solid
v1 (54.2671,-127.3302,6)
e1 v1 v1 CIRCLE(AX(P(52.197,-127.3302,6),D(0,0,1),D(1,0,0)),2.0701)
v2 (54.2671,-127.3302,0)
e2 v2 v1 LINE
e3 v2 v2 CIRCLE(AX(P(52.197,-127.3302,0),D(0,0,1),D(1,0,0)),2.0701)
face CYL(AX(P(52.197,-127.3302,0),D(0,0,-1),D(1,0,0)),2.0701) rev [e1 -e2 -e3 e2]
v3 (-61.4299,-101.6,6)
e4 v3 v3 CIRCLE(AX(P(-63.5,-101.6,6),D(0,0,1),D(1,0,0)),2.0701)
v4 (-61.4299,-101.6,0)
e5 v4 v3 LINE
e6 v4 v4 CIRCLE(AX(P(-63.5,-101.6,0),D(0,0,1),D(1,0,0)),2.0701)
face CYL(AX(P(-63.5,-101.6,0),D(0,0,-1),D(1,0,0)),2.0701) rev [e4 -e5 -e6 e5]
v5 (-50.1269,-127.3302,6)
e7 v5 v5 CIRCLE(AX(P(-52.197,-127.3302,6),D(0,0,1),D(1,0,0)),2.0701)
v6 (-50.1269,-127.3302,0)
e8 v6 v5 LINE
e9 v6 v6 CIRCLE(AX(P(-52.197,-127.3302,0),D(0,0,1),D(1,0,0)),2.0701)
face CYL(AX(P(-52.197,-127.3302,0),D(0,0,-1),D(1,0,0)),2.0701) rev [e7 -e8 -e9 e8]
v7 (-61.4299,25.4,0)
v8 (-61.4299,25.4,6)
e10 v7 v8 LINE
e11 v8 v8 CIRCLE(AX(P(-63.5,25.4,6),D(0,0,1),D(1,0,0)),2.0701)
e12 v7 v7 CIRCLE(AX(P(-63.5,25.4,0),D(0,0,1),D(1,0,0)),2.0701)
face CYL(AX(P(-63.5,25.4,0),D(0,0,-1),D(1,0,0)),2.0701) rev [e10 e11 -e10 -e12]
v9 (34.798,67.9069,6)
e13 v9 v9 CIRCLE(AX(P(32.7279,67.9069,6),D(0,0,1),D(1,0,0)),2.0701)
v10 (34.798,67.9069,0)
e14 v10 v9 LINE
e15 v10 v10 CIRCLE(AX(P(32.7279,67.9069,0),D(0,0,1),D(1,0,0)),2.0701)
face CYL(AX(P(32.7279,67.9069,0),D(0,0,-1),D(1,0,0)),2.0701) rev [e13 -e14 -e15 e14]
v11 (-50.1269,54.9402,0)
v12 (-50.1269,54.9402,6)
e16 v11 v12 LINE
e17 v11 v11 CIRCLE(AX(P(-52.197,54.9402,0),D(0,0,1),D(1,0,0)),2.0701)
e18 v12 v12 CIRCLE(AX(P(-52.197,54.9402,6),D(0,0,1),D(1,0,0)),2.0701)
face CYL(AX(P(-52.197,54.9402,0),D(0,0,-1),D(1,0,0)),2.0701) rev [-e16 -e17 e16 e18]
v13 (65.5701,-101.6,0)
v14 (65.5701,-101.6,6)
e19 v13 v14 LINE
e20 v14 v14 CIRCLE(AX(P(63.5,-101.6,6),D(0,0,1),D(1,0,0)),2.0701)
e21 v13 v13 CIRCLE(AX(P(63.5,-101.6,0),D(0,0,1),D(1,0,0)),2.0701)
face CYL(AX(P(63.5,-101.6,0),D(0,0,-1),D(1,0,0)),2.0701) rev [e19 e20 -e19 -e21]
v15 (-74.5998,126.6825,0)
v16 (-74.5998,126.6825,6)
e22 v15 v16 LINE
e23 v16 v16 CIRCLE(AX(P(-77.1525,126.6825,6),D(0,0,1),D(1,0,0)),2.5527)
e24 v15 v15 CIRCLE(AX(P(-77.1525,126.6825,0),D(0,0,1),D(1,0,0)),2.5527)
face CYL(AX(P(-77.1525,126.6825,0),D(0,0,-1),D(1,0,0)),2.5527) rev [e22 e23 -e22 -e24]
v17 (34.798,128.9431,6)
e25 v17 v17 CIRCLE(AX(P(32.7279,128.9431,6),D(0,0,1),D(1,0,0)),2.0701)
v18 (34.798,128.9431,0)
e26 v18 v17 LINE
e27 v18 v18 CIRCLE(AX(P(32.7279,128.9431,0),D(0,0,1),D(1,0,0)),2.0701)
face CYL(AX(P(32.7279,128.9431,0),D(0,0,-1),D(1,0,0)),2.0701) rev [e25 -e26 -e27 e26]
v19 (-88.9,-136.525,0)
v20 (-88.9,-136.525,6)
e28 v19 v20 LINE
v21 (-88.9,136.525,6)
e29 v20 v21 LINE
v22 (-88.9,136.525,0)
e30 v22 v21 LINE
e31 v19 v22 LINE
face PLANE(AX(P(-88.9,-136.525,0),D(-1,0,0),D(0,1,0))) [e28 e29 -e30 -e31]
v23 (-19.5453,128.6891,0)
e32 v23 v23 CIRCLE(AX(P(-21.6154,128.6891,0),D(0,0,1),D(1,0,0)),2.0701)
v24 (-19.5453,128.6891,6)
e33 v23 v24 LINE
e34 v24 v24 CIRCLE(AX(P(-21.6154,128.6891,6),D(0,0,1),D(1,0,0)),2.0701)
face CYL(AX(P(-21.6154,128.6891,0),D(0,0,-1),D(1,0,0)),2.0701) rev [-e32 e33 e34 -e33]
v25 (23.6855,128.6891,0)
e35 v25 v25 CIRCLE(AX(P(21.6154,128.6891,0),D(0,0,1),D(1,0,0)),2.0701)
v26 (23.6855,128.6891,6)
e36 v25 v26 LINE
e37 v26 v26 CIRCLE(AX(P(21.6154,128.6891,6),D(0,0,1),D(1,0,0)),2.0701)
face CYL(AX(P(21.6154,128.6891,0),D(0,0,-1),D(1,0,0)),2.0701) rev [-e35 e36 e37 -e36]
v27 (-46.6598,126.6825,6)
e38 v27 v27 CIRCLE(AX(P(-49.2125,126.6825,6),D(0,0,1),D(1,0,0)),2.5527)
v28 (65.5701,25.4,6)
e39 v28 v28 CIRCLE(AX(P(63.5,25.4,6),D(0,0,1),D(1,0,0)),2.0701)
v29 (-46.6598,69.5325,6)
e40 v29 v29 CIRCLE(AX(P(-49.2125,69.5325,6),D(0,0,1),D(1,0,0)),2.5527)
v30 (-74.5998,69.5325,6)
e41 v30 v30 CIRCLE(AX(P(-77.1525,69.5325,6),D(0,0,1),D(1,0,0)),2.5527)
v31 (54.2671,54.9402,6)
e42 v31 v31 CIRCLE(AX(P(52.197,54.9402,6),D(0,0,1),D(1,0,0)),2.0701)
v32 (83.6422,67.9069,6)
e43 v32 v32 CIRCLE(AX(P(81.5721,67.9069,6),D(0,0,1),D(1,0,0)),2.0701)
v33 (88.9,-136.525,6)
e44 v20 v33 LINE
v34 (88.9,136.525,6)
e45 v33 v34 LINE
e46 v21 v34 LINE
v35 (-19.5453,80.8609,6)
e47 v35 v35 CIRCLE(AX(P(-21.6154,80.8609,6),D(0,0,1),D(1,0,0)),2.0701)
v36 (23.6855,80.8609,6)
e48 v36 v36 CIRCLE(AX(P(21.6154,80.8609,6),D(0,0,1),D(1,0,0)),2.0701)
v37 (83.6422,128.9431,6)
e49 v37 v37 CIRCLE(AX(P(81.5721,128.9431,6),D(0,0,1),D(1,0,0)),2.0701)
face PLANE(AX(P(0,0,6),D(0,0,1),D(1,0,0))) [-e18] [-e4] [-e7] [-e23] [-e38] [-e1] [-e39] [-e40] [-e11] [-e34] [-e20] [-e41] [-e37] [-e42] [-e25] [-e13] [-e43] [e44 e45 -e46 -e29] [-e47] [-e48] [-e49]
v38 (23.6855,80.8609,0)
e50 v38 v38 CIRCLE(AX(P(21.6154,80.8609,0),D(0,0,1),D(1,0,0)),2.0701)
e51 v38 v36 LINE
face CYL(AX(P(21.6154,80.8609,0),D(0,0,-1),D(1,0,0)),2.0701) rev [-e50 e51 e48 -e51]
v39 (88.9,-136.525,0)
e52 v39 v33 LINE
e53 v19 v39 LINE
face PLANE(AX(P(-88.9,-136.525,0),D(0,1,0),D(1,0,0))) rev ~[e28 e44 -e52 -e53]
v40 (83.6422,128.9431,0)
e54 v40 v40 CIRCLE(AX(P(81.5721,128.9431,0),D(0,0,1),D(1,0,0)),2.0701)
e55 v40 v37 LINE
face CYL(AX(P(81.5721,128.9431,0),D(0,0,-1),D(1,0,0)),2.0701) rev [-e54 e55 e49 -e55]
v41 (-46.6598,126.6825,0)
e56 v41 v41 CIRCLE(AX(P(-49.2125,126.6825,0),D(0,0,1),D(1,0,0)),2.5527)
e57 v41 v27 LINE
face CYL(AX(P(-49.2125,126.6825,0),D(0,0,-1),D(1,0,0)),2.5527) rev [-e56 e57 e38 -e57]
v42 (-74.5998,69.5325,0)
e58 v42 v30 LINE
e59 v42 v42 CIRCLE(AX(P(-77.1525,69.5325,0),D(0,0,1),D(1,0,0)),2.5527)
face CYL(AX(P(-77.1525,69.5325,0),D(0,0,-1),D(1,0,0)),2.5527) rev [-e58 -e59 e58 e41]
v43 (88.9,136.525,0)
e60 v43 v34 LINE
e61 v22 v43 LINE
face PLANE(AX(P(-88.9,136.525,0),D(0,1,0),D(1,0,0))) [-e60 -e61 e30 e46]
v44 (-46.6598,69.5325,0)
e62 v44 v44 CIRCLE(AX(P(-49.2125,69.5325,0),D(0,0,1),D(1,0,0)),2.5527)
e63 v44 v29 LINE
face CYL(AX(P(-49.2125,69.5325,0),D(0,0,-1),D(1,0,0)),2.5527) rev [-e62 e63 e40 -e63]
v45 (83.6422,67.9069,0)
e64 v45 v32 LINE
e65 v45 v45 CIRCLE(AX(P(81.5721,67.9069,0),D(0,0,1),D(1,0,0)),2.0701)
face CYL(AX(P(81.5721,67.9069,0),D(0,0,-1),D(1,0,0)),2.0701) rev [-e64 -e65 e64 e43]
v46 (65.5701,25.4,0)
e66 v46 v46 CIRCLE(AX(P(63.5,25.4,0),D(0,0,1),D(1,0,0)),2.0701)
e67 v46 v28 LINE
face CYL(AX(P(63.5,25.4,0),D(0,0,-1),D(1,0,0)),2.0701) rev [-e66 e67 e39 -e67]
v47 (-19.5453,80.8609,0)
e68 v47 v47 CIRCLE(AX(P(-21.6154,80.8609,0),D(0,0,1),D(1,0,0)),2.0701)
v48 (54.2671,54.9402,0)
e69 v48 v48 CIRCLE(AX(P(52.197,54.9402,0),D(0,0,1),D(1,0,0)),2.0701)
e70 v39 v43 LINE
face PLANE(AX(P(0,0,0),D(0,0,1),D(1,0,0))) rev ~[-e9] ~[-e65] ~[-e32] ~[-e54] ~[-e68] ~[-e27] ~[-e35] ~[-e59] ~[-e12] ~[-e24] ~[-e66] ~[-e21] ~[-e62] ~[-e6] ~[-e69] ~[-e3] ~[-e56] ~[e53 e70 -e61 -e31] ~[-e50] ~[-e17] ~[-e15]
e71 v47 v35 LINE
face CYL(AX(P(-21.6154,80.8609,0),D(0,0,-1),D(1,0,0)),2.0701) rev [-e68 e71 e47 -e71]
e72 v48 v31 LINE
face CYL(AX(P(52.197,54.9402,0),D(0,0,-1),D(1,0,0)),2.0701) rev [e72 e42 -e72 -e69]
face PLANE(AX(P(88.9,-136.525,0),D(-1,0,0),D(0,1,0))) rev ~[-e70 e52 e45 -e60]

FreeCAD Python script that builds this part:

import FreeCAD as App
import Part
import Sketcher
Q = App.Units.Quantity


def add_polygon(sketch, points):
    """Adds a closed chain of lines whose ends are joined by coincident constraints."""
    first, n = sketch.GeometryCount, len(points)
    for a, b in zip(points, points[1:] + points[:1]):
        sketch.addGeometry(Part.LineSegment(App.Vector(*a, 0), App.Vector(*b, 0)), False)
    for i in range(n):
        sketch.addConstraint(Sketcher.Constraint("Coincident", first + i, 2, first + (i + 1) % n, 1))

doc = App.newDocument("Part")
body = doc.addObject("PartDesign::Body", "Body")

sketch1 = body.newObject("Sketcher::SketchObject", "Sketch")
sketch1.AttachmentSupport = (doc.getObject("XY_Plane"), [""])
sketch1.MapMode = "FlatFace"
add_polygon(sketch1, [(-88.9, 136.5), (-88.9, -136.5), (88.9, -136.5), (88.9, 136.5)])
sketch1.addGeometry(Part.Circle(App.Vector(-63.5, -101.6, 0), App.Vector(0, 0, 1), 2.1), False)
sketch1.addGeometry(Part.Circle(App.Vector(-52.2, -127.3, 0), App.Vector(0, 0, 1), 2.1), False)
sketch1.addGeometry(Part.Circle(App.Vector(52.2, -127.3, 0), App.Vector(0, 0, 1), 2.1), False)
sketch1.addGeometry(Part.Circle(App.Vector(63.5, -101.6, 0), App.Vector(0, 0, 1), 2.1), False)
sketch1.addGeometry(Part.Circle(App.Vector(-63.5, 25.4, 0), App.Vector(0, 0, 1), 2.1), False)
sketch1.addGeometry(Part.Circle(App.Vector(-52.2, 54.9, 0), App.Vector(0, 0, 1), 2.1), False)
sketch1.addGeometry(Part.Circle(App.Vector(-77.2, 69.5, 0), App.Vector(0, 0, 1), 2.6), False)
sketch1.addGeometry(Part.Circle(App.Vector(-49.2, 69.5, 0), App.Vector(0, 0, 1), 2.6), False)
sketch1.addGeometry(Part.Circle(App.Vector(-77.2, 126.7, 0), App.Vector(0, 0, 1), 2.6), False)
sketch1.addGeometry(Part.Circle(App.Vector(-49.2, 126.7, 0), App.Vector(0, 0, 1), 2.6), False)
sketch1.addGeometry(Part.Circle(App.Vector(-21.6, 80.9, 0), App.Vector(0, 0, 1), 2.1), False)
sketch1.addGeometry(Part.Circle(App.Vector(-21.6, 128.7, 0), App.Vector(0, 0, 1), 2.1), False)
sketch1.addGeometry(Part.Circle(App.Vector(63.5, 25.4, 0), App.Vector(0, 0, 1), 2.1), False)
sketch1.addGeometry(Part.Circle(App.Vector(52.2, 54.9, 0), App.Vector(0, 0, 1), 2.1), False)
sketch1.addGeometry(Part.Circle(App.Vector(21.6, 80.9, 0), App.Vector(0, 0, 1), 2.1), False)
sketch1.addGeometry(Part.Circle(App.Vector(32.7, 67.9, 0), App.Vector(0, 0, 1), 2.1), False)
sketch1.addGeometry(Part.Circle(App.Vector(21.6, 128.7, 0), App.Vector(0, 0, 1), 2.1), False)
sketch1.addGeometry(Part.Circle(App.Vector(32.7, 128.9, 0), App.Vector(0, 0, 1), 2.1), False)
sketch1.addGeometry(Part.Circle(App.Vector(81.6, 67.9, 0), App.Vector(0, 0, 1), 2.1), False)
sketch1.addGeometry(Part.Circle(App.Vector(81.6, 128.9, 0), App.Vector(0, 0, 1), 2.1), False)
sketch1.addConstraint(Sketcher.Constraint("Vertical", 0))
sketch1.addConstraint(Sketcher.Constraint("Horizontal", 1))
sketch1.addConstraint(Sketcher.Constraint("Vertical", 2))
sketch1.addConstraint(Sketcher.Constraint("Horizontal", 3))
sketch1.addConstraint(Sketcher.Constraint("Equal", 4, 5))
sketch1.addConstraint(Sketcher.Constraint("Equal", 5, 6))
sketch1.addConstraint(Sketcher.Constraint("Equal", 6, 7))
sketch1.addConstraint(Sketcher.Constraint("Equal", 7, 8))
sketch1.addConstraint(Sketcher.Constraint("Equal", 8, 9))
sketch1.addConstraint(Sketcher.Constraint("Equal", 10, 11))
sketch1.addConstraint(Sketcher.Constraint("Equal", 11, 12))
sketch1.addConstraint(Sketcher.Constraint("Equal", 12, 13))
sketch1.addConstraint(Sketcher.Constraint("Equal", 9, 14))
sketch1.addConstraint(Sketcher.Constraint("Equal", 14, 15))
sketch1.addConstraint(Sketcher.Constraint("Equal", 15, 16))
sketch1.addConstraint(Sketcher.Constraint("Equal", 16, 17))
sketch1.addConstraint(Sketcher.Constraint("Equal", 17, 18))
sketch1.addConstraint(Sketcher.Constraint("Equal", 18, 19))
sketch1.addConstraint(Sketcher.Constraint("Equal", 19, 20))
sketch1.addConstraint(Sketcher.Constraint("Equal", 20, 21))
sketch1.addConstraint(Sketcher.Constraint("Equal", 21, 22))
sketch1.addConstraint(Sketcher.Constraint("Equal", 22, 23))
sketch1.addConstraint(Sketcher.Constraint("Symmetric", 0, 2, 2, 2, -1, 1))
sketch1.addConstraint(Sketcher.Constraint("Symmetric", 5, 3, 6, 3, -2))
sketch1.addConstraint(Sketcher.Constraint("Symmetric", 4, 3, 7, 3, -2))
sketch1.addConstraint(Sketcher.Constraint("Symmetric", 8, 3, 16, 3, -2))
sketch1.addConstraint(Sketcher.Constraint("Symmetric", 9, 3, 17, 3, -2))
sketch1.addConstraint(Sketcher.Constraint("Symmetric", 14, 3, 18, 3, -2))
sketch1.addConstraint(Sketcher.Constraint("Symmetric", 15, 3, 20, 3, -2))
sketch1.addConstraint(Sketcher.Constraint("Horizontal", 10, 3, 11, 3))
sketch1.addConstraint(Sketcher.Constraint("Horizontal", 12, 3, 13, 3))
sketch1.addConstraint(Sketcher.Constraint("Horizontal", 19, 3, 22, 3))
sketch1.addConstraint(Sketcher.Constraint("Horizontal", 21, 3, 23, 3))
sketch1.addConstraint(Sketcher.Constraint("Vertical", 4, 3, 8, 3))
sketch1.addConstraint(Sketcher.Constraint("Vertical", 5, 3, 9, 3))
sketch1.addConstraint(Sketcher.Constraint("Vertical", 10, 3, 12, 3))
sketch1.addConstraint(Sketcher.Constraint("Vertical", 11, 3, 13, 3))
sketch1.addConstraint(Sketcher.Constraint("Vertical", 14, 3, 15, 3))
sketch1.addConstraint(Sketcher.Constraint("Vertical", 19, 3, 21, 3))
sketch1.addConstraint(Sketcher.Constraint("Vertical", 22, 3, 23, 3))
sketch1.addConstraint(Sketcher.Constraint("DistanceX", 1, 1, 1, 2, Q("7 in")))
sketch1.addConstraint(Sketcher.Constraint("Diameter", 4, Q("0.163 in")))
sketch1.addConstraint(Sketcher.Constraint("Diameter", 10, Q("0.201 in")))
sketch1.addConstraint(Sketcher.Constraint("DistanceY", 4, 3, -1, 1, Q("4 in")))
sketch1.addConstraint(Sketcher.Constraint("DistanceY", -1, 1, 8, 3, Q("1 in")))
sketch1.addConstraint(Sketcher.Constraint("DistanceX", 4, 3, 7, 3, Q("5 in")))
sketch1.addConstraint(Sketcher.Constraint("DistanceY", 0, 2, 0, 1, Q("10.75 in")))
sketch1.addConstraint(Sketcher.Constraint("DistanceX", 10, 3, 11, 3, Q("1.1 in")))
sketch1.addConstraint(Sketcher.Constraint("DistanceX", 5, 3, 6, 3, Q("4.11 in")))
sketch1.addConstraint(Sketcher.Constraint("DistanceY", 10, 3, 12, 3, Q("2.25 in")))
sketch1.addConstraint(Sketcher.Constraint("DistanceY", 19, 3, 18, 3, Q("0.51 in")))
sketch1.addConstraint(Sketcher.Constraint("DistanceY", 20, 3, 21, 3, Q("0.01 in")))
sketch1.addConstraint(Sketcher.Constraint("DistanceY", 5, 3, -1, 1, Q("5.013 in")))
sketch1.addConstraint(Sketcher.Constraint("DistanceY", -1, 1, 9, 3, Q("2.163 in")))
sketch1.addConstraint(Sketcher.Constraint("DistanceX", 11, 3, -1, 1, Q("1.9375 in")))
sketch1.addConstraint(Sketcher.Constraint("DistanceX", 14, 3, -1, 1, Q("0.851 in")))
sketch1.addConstraint(Sketcher.Constraint("DistanceY", 11, 3, 14, 3, Q("0.446 in")))
sketch1.addConstraint(Sketcher.Constraint("DistanceY", 13, 3, 15, 3, Q("0.079 in")))
sketch1.addConstraint(Sketcher.Constraint("DistanceX", 18, 3, 19, 3, Q("0.4375 in")))
sketch1.addConstraint(Sketcher.Constraint("DistanceX", 19, 3, 22, 3, Q("1.923 in")))
sketch1.addConstraint(Sketcher.Constraint("DistanceY", -1, 1, 10, 3, Q("2.7375 in")))
pad1 = body.newObject("PartDesign::Pad", "Pad")
pad1.Profile = sketch1
pad1.Length = 6

doc.recompute()
